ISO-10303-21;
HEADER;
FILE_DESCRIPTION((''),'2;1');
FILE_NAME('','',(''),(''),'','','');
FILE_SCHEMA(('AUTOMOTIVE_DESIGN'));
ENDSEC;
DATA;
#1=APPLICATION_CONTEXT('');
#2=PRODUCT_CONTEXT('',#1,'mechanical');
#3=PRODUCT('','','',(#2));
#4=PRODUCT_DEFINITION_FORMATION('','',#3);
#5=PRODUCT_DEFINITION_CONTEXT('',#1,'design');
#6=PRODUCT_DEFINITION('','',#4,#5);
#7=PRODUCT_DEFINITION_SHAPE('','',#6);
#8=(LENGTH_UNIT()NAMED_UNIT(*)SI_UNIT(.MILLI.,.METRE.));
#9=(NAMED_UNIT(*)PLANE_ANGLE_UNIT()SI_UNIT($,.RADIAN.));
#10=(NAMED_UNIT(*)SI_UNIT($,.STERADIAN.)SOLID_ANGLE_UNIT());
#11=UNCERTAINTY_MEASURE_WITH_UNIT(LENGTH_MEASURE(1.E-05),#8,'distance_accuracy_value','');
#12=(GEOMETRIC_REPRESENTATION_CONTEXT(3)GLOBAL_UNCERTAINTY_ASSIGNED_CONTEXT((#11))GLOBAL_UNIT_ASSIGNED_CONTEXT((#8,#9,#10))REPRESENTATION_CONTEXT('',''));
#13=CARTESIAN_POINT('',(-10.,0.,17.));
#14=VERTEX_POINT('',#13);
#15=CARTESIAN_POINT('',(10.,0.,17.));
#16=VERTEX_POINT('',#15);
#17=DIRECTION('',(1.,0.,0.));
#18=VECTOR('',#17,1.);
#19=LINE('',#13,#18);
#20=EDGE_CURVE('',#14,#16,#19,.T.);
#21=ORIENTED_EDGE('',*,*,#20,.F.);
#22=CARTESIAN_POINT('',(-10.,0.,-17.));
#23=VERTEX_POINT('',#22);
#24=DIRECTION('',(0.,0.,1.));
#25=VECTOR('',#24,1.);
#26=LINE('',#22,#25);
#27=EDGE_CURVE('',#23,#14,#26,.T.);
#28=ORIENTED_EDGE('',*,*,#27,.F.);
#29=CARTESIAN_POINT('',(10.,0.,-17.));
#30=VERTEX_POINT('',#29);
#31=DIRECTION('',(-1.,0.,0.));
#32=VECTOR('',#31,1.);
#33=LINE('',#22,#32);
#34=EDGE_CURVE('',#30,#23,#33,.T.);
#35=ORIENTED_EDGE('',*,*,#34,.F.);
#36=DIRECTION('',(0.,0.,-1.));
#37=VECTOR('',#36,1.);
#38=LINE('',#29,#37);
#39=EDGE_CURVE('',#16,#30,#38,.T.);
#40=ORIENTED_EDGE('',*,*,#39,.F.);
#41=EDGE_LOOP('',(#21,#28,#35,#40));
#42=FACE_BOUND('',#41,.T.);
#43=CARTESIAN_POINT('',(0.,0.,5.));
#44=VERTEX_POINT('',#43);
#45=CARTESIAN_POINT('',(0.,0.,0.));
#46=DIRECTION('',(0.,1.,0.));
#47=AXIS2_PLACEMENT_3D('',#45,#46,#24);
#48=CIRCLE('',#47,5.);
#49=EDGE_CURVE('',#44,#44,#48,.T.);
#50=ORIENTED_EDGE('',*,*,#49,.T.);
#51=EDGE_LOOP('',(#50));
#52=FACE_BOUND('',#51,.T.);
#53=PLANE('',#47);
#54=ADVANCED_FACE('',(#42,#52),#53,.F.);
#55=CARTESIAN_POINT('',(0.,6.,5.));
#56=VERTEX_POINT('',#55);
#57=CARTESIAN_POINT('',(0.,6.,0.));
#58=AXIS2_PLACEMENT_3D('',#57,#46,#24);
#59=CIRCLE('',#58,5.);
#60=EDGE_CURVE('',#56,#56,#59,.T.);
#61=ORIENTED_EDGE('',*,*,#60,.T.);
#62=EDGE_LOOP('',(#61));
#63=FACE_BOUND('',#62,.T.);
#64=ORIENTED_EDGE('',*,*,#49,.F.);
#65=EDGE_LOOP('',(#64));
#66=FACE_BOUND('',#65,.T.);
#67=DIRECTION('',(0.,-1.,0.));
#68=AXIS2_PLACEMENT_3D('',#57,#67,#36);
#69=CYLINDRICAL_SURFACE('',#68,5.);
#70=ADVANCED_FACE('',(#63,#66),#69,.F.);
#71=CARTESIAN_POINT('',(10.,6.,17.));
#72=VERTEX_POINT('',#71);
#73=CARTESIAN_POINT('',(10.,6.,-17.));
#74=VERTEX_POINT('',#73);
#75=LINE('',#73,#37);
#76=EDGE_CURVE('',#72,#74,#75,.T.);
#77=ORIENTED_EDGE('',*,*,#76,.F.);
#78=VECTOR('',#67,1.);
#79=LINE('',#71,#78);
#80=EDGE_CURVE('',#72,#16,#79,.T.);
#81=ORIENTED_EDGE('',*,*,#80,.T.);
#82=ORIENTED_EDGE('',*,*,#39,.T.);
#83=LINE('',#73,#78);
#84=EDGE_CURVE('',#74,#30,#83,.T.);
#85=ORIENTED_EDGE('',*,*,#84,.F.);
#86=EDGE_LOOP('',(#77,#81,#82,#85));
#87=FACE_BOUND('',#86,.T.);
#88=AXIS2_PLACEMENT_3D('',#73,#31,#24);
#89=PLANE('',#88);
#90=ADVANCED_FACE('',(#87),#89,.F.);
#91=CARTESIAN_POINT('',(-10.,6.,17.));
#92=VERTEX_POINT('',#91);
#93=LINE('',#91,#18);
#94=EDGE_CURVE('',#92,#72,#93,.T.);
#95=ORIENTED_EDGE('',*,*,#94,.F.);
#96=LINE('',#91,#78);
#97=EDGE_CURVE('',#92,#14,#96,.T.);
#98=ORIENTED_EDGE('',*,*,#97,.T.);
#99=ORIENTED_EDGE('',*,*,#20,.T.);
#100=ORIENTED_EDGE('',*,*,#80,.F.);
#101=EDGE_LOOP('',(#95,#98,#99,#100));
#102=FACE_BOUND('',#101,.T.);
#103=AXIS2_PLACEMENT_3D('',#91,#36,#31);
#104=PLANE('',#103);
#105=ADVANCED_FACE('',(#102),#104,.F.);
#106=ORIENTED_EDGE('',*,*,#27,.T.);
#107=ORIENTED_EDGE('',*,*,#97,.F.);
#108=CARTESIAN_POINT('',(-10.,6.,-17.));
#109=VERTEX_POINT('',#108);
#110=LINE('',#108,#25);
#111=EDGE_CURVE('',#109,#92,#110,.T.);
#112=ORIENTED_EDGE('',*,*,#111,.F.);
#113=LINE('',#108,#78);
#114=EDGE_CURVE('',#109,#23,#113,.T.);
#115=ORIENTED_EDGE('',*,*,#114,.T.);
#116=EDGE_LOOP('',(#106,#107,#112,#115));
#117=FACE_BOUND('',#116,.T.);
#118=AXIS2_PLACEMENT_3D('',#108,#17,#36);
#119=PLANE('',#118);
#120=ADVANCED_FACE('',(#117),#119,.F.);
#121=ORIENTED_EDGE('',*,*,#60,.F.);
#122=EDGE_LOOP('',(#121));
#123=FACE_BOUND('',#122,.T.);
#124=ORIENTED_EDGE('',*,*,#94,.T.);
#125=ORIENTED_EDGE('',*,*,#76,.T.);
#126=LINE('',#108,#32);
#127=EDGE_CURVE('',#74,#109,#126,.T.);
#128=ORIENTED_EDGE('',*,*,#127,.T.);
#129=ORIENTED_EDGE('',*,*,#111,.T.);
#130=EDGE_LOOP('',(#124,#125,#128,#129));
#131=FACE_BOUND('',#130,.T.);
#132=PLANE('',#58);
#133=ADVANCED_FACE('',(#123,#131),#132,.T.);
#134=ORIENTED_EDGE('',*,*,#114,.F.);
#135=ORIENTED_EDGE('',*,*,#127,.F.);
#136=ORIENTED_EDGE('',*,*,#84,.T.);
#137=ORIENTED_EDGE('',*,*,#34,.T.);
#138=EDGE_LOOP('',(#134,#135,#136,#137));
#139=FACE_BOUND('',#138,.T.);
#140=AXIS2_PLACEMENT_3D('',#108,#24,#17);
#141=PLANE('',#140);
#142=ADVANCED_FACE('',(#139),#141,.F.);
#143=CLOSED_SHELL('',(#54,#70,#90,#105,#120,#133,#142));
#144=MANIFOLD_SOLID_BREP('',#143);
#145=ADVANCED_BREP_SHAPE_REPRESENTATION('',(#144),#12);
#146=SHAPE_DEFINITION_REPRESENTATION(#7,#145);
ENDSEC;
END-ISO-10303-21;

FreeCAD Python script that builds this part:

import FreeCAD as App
import Part
import Sketcher
from FreeCAD import Vector
Q = App.Units.Quantity

doc = App.newDocument("Part")
body = doc.addObject("PartDesign::Body", "Body")

sketch1 = doc.addObject("Sketcher::SketchObject", "Sketch")
body.addObject(sketch1)
sketch1.AttachmentSupport = (doc.XZ_Plane, [""])
sketch1.MapMode = "FlatFace"
sketch1.addGeometry([
    Part.LineSegment(Vector(-10, -17, 0), Vector(-10, 17, 0)),
    Part.LineSegment(Vector(-10, 17, 0), Vector(10, 17, 0)),
    Part.LineSegment(Vector(10, 17, 0), Vector(10, -17, 0)),
    Part.LineSegment(Vector(10, -17, 0), Vector(-10, -17, 0)),
    Part.Circle(Vector(0, 0, 0), Vector(0, 0, 1), 5),
], False)
sketch1.addConstraint([
    Sketcher.Constraint("Coincident", 0, 2, 1, 1),
    Sketcher.Constraint("Coincident", 1, 2, 2, 1),
    Sketcher.Constraint("Coincident", 2, 2, 3, 1),
    Sketcher.Constraint("Coincident", 3, 2, 0, 1),
    Sketcher.Constraint("Vertical", 0),
    Sketcher.Constraint("Horizontal", 1),
    Sketcher.Constraint("Vertical", 2),
    Sketcher.Constraint("Horizontal", 3),
    Sketcher.Constraint("Coincident", 4, 3, -1, 1),
    Sketcher.Constraint("Symmetric", 0, 2, 2, 2, -1, 1),
    Sketcher.Constraint("Diameter", 4, Q("10 mm")),
    Sketcher.Constraint("DistanceX", 1, 1, 1, 2, Q("20 mm")),
    Sketcher.Constraint("DistanceY", 0, 1, 0, 2, Q("34 mm")),
])
pad1 = doc.addObject("PartDesign::Pad", "Pad")
body.addObject(pad1)
pad1.Profile = sketch1
pad1.Length = 6
pad1.Reversed = True

doc.recompute()
